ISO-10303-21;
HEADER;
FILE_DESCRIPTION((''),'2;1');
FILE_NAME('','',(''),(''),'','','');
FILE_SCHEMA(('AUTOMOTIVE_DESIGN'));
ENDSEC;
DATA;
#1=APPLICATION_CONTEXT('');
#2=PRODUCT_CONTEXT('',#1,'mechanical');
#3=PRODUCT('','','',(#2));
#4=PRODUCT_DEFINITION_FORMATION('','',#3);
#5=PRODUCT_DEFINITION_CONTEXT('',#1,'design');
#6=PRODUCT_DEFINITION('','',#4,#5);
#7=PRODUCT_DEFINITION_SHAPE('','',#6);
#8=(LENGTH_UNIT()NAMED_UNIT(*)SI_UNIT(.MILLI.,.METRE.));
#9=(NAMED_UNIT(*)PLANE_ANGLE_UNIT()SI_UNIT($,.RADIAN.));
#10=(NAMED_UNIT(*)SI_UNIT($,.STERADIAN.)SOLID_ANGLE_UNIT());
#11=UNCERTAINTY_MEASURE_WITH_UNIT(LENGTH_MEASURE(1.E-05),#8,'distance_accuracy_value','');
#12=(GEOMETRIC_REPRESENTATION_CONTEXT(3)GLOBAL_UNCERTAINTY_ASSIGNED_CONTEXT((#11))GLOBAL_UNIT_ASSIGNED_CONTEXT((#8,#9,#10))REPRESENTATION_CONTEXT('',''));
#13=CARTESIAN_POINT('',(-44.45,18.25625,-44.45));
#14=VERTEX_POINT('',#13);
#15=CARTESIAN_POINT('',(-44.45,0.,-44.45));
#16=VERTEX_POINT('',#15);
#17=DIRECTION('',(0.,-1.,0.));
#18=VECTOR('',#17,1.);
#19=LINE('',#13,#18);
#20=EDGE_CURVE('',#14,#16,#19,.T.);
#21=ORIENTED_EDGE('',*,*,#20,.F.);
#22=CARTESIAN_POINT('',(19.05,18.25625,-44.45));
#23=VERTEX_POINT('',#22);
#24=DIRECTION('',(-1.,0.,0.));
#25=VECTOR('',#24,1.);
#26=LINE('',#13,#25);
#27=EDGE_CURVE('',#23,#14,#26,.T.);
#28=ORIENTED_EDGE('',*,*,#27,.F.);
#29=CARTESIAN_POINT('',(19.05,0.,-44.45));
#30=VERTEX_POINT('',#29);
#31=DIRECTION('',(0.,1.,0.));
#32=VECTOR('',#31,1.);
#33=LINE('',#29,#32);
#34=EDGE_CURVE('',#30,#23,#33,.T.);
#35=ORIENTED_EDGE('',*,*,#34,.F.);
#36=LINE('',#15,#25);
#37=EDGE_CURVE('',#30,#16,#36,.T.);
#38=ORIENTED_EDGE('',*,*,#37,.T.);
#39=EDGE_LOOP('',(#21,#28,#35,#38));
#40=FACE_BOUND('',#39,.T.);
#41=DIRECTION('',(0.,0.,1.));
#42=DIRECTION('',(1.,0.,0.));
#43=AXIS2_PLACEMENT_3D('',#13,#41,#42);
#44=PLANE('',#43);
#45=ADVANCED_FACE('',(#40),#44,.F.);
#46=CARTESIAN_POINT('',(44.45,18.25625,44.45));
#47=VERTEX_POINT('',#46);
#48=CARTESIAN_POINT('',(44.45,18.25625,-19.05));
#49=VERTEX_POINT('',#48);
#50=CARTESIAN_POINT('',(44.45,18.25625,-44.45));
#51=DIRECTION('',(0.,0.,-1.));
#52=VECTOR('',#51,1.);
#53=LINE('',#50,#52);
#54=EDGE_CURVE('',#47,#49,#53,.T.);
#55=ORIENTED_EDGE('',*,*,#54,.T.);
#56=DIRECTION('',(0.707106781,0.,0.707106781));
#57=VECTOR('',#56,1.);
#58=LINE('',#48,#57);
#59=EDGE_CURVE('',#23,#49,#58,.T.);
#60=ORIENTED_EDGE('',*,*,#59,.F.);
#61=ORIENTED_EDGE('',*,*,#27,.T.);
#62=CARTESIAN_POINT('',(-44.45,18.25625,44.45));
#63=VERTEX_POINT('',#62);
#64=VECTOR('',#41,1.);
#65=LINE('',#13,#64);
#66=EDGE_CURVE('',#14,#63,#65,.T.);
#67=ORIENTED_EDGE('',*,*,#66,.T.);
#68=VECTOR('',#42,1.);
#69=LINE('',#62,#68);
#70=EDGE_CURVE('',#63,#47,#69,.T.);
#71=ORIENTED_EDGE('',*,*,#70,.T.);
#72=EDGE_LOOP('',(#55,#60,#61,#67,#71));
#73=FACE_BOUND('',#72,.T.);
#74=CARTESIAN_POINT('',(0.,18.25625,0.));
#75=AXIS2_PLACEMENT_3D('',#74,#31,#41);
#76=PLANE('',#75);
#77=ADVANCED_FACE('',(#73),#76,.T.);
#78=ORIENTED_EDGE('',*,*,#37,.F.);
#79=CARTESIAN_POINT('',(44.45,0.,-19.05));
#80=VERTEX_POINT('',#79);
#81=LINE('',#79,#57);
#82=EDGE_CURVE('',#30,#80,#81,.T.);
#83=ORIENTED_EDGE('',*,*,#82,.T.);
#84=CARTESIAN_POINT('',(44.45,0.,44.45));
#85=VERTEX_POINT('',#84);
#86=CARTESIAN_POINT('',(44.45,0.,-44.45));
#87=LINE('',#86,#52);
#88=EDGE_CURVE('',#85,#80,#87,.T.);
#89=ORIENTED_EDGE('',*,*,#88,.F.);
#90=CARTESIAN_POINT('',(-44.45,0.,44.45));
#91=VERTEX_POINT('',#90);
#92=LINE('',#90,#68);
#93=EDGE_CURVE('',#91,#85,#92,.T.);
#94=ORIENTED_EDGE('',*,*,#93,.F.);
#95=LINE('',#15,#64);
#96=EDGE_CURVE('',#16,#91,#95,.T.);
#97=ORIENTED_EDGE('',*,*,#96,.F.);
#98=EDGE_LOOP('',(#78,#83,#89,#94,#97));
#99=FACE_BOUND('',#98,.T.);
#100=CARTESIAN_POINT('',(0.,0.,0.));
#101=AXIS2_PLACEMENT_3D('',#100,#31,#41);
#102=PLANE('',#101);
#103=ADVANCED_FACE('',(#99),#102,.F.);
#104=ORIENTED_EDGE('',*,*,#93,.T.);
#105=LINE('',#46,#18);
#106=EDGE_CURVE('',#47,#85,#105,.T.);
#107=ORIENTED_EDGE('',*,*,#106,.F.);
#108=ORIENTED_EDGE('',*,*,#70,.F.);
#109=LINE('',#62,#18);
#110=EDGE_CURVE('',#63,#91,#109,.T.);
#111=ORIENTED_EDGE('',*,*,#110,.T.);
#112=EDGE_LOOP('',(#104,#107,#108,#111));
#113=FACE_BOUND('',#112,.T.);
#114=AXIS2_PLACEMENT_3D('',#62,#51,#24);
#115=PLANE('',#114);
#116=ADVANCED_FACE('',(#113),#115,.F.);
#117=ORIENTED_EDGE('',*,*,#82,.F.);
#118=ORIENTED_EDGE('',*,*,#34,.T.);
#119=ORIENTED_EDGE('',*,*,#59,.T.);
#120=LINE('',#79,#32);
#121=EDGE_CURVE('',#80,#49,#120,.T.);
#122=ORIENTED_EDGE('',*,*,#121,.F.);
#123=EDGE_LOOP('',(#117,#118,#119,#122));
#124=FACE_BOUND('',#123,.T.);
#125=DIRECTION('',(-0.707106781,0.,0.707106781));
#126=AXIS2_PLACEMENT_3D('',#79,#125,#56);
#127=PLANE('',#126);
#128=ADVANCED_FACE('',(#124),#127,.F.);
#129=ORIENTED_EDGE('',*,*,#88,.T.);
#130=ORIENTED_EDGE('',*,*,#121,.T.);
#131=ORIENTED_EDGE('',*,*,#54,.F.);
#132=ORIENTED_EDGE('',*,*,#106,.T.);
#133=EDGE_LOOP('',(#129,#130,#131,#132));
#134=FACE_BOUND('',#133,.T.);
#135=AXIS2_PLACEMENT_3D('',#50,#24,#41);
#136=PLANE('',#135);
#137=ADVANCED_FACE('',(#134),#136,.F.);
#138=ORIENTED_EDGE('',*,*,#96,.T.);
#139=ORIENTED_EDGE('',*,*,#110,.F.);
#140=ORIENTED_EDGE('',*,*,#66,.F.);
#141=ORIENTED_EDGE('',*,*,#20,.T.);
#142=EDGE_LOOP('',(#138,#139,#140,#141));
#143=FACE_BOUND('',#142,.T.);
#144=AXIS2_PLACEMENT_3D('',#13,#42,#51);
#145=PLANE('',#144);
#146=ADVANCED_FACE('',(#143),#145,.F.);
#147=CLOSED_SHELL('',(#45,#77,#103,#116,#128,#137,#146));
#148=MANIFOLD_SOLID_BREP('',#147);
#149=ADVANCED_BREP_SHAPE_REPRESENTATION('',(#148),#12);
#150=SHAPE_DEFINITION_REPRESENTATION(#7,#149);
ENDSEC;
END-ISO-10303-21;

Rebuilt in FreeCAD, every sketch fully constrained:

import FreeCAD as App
import Part
import Sketcher
Q = App.Units.Quantity


def add_polygon(sketch, points):
    """Adds a closed chain of lines whose ends are joined by coincident constraints."""
    first, n = sketch.GeometryCount, len(points)
    for a, b in zip(points, points[1:] + points[:1]):
        sketch.addGeometry(Part.LineSegment(App.Vector(*a, 0), App.Vector(*b, 0)), False)
    for i in range(n):
        sketch.addConstraint(Sketcher.Constraint("Coincident", first + i, 2, first + (i + 1) % n, 1))

doc = App.newDocument("Part")
body = doc.addObject("PartDesign::Body", "Body")

# Sketch on XZ plane
sketch1 = body.newObject("Sketcher::SketchObject", "Sketch")
sketch1.AttachmentSupport = (doc.getObject("XZ_Plane"), [""])
sketch1.MapMode = "FlatFace"
add_polygon(sketch1, [(-44, -44), (-44, 44), (44, 44), (44, -44)])  # lines 0-3
sketch1.addConstraint([
    Sketcher.Constraint("Vertical", 0),
    Sketcher.Constraint("Horizontal", 1),
    Sketcher.Constraint("Vertical", 2),
    Sketcher.Constraint("Horizontal", 3),
    Sketcher.Constraint("Symmetric", 0, 2, 2, 2, -1, 1),
    Sketcher.Constraint("Equal", 3, 0),
    Sketcher.Constraint("DistanceX", 1, 1, 1, 2, Q("3.5 in")),
])
pad1 = body.newObject("PartDesign::Pad", "Pad")
pad1.Profile = sketch1
pad1.Length = Q("0.71875 in")
pad1.Reversed = True

# Sketch on XZ plane
sketch2 = body.newObject("Sketcher::SketchObject", "Sketch001")
sketch2.AttachmentSupport = (doc.getObject("XZ_Plane"), [""])
sketch2.MapMode = "FlatFace"
sketch2.AttachmentOffset = App.Placement(App.Vector(0, 0, -0.71875 * 25.4), App.Rotation())
add_polygon(sketch2, [(44, -19), (44, -44), (19, -44)])  # lines 0-2
sketch2.addConstraint([
    Sketcher.Constraint("Vertical", 0),
    Sketcher.Constraint("Horizontal", 1),
    Sketcher.Constraint("Equal", 1, 0),
    Sketcher.Constraint("DistanceX", 1, 2, 1, 1, Q("1 in")),
    Sketcher.Constraint("DistanceX", -1, 1, 0, 2, Q("1.75 in")),
    Sketcher.Constraint("DistanceY", 0, 2, -1, 1, Q("1.75 in")),
])
pocket1 = body.newObject("PartDesign::Pocket", "Pocket")
pocket1.Profile = sketch2
pocket1.Type = "ThroughAll"
pocket1.Reversed = True

doc.recompute()
